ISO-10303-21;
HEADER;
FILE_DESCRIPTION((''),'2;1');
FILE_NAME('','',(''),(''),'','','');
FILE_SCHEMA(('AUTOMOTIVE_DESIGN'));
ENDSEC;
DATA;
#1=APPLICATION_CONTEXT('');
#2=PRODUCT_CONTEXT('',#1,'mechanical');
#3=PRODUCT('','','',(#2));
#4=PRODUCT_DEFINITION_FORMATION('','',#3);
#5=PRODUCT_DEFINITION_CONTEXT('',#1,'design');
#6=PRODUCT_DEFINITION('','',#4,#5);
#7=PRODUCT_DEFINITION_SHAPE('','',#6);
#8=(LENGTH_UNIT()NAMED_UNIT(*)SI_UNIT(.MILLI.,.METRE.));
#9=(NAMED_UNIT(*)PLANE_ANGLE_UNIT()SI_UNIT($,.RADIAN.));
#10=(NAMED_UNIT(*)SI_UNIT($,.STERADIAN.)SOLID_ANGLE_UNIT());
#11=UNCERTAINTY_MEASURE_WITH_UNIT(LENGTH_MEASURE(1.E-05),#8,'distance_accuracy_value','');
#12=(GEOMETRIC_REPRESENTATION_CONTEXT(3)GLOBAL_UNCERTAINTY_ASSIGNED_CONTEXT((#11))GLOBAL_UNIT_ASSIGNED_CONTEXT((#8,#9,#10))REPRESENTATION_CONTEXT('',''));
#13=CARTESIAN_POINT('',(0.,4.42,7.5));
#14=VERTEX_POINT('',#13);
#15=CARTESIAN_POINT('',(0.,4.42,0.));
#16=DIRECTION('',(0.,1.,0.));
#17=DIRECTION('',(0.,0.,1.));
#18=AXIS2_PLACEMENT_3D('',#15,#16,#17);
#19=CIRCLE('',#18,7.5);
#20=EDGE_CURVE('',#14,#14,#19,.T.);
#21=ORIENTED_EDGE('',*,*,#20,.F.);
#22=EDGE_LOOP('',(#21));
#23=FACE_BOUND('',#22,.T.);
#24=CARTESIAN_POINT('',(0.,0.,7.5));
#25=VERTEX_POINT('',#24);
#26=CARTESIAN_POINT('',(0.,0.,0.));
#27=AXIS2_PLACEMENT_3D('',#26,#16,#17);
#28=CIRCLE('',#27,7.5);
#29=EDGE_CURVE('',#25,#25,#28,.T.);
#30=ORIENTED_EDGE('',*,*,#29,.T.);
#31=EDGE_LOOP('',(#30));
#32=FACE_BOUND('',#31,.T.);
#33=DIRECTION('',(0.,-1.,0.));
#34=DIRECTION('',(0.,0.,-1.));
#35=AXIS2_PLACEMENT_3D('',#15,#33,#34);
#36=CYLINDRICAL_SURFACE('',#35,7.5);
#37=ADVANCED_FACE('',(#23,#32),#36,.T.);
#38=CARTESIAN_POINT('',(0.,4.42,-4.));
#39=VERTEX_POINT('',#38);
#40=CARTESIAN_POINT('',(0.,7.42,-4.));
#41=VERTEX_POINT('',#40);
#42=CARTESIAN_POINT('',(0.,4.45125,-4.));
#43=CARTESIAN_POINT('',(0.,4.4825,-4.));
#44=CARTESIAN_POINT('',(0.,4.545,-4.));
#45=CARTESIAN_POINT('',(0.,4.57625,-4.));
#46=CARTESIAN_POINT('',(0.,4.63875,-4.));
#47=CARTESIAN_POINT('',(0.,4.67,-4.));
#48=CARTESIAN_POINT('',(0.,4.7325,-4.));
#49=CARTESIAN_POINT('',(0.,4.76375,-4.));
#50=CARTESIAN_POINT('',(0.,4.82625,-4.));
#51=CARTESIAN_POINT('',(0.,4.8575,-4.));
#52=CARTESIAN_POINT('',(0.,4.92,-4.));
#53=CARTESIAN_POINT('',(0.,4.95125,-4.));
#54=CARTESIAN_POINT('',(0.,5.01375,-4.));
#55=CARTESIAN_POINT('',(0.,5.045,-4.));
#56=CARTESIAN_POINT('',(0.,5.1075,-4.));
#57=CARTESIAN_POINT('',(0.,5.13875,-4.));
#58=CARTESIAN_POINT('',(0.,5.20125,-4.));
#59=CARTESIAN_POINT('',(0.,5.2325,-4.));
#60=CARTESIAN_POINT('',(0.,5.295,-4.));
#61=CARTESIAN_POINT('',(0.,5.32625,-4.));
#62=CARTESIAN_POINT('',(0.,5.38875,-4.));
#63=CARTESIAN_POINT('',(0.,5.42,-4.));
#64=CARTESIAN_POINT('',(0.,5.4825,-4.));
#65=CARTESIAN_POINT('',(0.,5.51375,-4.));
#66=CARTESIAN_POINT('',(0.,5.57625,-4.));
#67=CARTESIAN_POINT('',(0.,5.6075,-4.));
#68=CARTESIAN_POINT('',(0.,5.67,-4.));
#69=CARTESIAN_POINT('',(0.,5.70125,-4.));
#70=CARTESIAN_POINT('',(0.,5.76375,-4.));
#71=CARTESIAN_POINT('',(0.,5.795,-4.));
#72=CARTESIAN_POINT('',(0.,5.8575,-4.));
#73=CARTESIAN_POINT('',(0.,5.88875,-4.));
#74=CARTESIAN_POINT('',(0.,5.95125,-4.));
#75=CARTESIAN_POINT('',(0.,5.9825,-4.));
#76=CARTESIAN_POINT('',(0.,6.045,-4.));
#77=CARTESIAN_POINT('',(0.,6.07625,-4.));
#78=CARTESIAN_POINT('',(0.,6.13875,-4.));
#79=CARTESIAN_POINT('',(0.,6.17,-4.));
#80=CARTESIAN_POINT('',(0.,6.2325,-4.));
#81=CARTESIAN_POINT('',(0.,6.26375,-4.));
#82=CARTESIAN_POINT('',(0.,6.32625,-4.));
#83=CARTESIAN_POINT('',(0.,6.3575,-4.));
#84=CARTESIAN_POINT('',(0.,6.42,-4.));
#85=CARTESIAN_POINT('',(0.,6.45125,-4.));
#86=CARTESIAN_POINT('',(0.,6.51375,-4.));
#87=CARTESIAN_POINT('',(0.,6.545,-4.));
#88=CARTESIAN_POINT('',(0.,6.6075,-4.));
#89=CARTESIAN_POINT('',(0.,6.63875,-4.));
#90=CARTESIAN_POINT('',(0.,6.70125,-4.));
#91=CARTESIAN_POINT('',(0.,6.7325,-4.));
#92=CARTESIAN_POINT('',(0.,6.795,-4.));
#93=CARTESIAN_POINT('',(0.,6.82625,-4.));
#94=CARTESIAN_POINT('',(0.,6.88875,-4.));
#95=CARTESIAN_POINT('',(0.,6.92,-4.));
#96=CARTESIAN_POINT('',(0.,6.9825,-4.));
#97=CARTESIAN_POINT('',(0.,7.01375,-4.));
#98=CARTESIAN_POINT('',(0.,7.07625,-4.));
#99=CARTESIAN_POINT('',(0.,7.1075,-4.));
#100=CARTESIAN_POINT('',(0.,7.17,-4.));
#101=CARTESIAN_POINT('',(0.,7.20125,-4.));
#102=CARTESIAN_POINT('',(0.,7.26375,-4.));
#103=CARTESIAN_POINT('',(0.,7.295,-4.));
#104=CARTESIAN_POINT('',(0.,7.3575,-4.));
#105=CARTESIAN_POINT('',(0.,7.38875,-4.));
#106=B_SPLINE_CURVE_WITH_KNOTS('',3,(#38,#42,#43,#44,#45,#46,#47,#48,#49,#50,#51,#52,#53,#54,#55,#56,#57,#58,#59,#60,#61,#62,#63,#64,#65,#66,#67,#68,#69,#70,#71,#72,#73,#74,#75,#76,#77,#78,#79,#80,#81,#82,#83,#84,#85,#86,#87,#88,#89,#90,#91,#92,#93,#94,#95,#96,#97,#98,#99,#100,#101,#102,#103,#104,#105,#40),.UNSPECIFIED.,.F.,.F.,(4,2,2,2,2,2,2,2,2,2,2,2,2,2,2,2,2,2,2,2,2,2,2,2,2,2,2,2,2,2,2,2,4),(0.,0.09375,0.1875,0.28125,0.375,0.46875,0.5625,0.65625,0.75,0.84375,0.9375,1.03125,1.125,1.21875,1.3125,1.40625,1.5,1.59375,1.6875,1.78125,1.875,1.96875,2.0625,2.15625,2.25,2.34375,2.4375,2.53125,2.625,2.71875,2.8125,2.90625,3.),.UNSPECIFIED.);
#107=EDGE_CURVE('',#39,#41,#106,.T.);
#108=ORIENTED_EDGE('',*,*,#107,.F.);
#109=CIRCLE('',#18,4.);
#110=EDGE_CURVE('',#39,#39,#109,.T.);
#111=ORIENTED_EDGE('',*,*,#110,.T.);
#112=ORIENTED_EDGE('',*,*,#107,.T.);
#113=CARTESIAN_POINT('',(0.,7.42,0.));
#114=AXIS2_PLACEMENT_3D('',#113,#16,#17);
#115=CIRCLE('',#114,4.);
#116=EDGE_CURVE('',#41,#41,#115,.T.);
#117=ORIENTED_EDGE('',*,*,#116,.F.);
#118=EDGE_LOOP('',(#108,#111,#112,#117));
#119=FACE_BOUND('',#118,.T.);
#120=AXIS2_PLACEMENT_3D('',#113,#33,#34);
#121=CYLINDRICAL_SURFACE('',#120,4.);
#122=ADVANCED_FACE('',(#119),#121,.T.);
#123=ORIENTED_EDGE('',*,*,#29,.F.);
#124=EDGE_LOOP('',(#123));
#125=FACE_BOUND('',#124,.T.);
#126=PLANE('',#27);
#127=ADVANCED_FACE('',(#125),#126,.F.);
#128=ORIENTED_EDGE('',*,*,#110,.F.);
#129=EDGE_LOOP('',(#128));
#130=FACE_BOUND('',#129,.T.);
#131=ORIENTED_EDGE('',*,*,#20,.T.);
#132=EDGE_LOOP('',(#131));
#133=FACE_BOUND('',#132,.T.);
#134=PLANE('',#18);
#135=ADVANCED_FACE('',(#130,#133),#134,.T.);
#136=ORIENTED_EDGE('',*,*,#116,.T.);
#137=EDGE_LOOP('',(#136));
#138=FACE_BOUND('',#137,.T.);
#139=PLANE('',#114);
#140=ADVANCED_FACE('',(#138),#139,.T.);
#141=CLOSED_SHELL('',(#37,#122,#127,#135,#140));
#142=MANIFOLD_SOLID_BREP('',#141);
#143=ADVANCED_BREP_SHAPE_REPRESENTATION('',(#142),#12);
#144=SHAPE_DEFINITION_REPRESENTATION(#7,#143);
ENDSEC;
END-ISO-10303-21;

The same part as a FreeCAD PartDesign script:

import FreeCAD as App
import Part
import Sketcher

doc = App.newDocument("Part")
body = doc.addObject("PartDesign::Body", "Body")

# Sketch on XZ plane
sketch1 = body.newObject("Sketcher::SketchObject", "Sketch")
sketch1.AttachmentSupport = (doc.getObject("XZ_Plane"), [""])
sketch1.MapMode = "FlatFace"
sketch1.addGeometry(Part.Circle(App.Vector(0, 0, 0), App.Vector(0, 0, 1), 7.5), False)
sketch1.addGeometry(Part.Circle(App.Vector(0, 0, 0), App.Vector(0, 0, 1), 4), False)
sketch1.addConstraint(Sketcher.Constraint("Coincident", 0, 3, -1, 1))
sketch1.addConstraint(Sketcher.Constraint("Coincident", 1, 3, -1, 1))
sketch1.addConstraint(Sketcher.Constraint("Diameter", 0, 15.0))
sketch1.addConstraint(Sketcher.Constraint("Diameter", 1, 8.0))
pad1 = body.newObject("PartDesign::Pad", "Pad")
pad1.Profile = sketch1
pad1.Length = 4.42
pad1.Reversed = True

# Sketch on XZ plane
sketch2 = body.newObject("Sketcher::SketchObject", "Sketch001")
sketch2.AttachmentSupport = (doc.getObject("XZ_Plane"), [""])
sketch2.MapMode = "FlatFace"
sketch2.addGeometry(Part.Circle(App.Vector(0, 0, 0), App.Vector(0, 0, 1), 4), False)
sketch2.addConstraint(Sketcher.Constraint("Coincident", 0, 3, -1, 1))
sketch2.addConstraint(Sketcher.Constraint("Diameter", 0, 8.0))
pad2 = body.newObject("PartDesign::Pad", "Pad001")
pad2.Profile = sketch2
pad2.Length = 7.42
pad2.Reversed = True

doc.recompute()
